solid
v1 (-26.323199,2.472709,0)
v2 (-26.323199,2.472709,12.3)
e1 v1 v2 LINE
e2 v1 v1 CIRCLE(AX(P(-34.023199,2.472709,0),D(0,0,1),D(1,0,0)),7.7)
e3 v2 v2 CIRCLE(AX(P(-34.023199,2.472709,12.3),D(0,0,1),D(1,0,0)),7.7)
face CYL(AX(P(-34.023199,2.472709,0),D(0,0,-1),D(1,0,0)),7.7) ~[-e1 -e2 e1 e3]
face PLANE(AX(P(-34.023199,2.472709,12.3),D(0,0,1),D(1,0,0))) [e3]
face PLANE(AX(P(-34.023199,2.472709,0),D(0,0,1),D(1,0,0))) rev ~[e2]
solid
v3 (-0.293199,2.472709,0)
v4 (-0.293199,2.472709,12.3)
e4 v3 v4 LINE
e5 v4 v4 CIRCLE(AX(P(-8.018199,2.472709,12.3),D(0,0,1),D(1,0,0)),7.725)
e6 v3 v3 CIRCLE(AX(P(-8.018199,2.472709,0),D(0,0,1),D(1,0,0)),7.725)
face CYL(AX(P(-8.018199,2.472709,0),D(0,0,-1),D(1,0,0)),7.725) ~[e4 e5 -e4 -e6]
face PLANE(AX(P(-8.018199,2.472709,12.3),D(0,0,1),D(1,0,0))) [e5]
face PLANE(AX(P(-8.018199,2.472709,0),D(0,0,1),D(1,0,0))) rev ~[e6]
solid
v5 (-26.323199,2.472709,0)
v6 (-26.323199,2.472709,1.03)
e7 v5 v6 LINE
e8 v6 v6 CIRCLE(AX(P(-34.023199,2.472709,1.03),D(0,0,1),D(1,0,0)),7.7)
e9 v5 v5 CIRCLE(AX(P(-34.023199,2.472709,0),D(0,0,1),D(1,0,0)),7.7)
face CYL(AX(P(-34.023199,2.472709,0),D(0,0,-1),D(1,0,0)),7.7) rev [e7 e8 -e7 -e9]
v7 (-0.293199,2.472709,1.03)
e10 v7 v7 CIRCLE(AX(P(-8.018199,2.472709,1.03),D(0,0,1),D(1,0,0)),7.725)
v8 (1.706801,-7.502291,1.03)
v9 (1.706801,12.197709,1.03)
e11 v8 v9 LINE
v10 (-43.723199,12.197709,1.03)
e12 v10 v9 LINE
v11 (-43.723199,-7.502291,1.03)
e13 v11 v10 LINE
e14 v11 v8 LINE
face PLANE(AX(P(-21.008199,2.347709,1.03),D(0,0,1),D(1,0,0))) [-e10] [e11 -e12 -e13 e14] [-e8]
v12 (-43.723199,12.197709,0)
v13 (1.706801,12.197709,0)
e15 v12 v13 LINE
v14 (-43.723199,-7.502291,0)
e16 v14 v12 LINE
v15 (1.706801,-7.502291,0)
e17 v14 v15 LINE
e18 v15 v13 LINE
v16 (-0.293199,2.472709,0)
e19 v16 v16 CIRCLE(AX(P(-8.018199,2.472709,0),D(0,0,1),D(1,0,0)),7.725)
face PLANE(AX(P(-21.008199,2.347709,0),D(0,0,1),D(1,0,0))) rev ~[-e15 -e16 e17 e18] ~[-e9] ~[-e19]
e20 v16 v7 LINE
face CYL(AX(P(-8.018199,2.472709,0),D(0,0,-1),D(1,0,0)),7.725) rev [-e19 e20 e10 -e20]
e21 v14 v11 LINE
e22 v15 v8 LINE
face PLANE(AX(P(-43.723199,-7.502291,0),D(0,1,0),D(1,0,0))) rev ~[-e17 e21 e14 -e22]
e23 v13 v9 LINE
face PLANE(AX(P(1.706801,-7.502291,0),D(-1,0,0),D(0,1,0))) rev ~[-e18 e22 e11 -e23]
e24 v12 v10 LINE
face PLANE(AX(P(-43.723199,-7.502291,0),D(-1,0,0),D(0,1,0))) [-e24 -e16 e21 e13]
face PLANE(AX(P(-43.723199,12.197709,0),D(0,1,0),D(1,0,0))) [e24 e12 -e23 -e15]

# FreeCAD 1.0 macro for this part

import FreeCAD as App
import Part
import Sketcher

V = App.Vector
Q = App.Units.Quantity

doc = App.newDocument("Part")
body = doc.addObject("PartDesign::Body", "Body")
body.AllowCompound = True

sketch1 = body.newObject("Sketcher::SketchObject", "Sketch")
sketch1.AttachmentSupport = (doc.getObject("XY_Plane"), [""])
sketch1.MapMode = "FlatFace"
sketch1.addGeometry(Part.Circle(V(-34, 2, 0), V(0, 0, 1), 8), False)
sketch1.addGeometry(Part.Circle(V(-8, 2, 0), V(0, 0, 1), 8), False)
sketch1.addConstraint(Sketcher.Constraint("Horizontal", 0, 3, 1, 3))
sketch1.addConstraint(Sketcher.Constraint("Diameter", 0, Q("15.4 mm")))
sketch1.addConstraint(Sketcher.Constraint("Diameter", 1, Q("15.45 mm")))
sketch1.addConstraint(Sketcher.Constraint("DistanceX", 0, 3, 1, 3, Q("26.005 mm")))
sketch1.addConstraint(Sketcher.Constraint("DistanceX", 0, 3, -1, 1, Q("34.023199 mm")))
sketch1.addConstraint(Sketcher.Constraint("DistanceY", -1, 1, 0, 3, Q("2.472709 mm")))
pad1 = body.newObject("PartDesign::Pad", "Pad")
pad1.Profile = sketch1
pad1.Length = 12.3
body2 = doc.addObject("PartDesign::Body", "Body001")

sketch2 = body2.newObject("Sketcher::SketchObject", "Sketch001")
sketch2.AttachmentSupport = (doc.getObject("XY_Plane001"), [""])
sketch2.MapMode = "FlatFace"
sketch2.addGeometry(Part.LineSegment(V(-44, 12, 0), V(-44, -8, 0)), False)
sketch2.addGeometry(Part.LineSegment(V(-44, -8, 0), V(2, -8, 0)), False)
sketch2.addGeometry(Part.LineSegment(V(2, -8, 0), V(2, 12, 0)), False)
sketch2.addGeometry(Part.LineSegment(V(2, 12, 0), V(-44, 12, 0)), False)
sketch2.addGeometry(Part.Circle(V(-34, 2, 0), V(0, 0, 1), 8), False)
sketch2.addGeometry(Part.Circle(V(-8, 2, 0), V(0, 0, 1), 8), False)
sketch2.addConstraint(Sketcher.Constraint("Coincident", 0, 2, 1, 1))
sketch2.addConstraint(Sketcher.Constraint("Coincident", 1, 2, 2, 1))
sketch2.addConstraint(Sketcher.Constraint("Coincident", 2, 2, 3, 1))
sketch2.addConstraint(Sketcher.Constraint("Coincident", 3, 2, 0, 1))
sketch2.addConstraint(Sketcher.Constraint("Vertical", 0))
sketch2.addConstraint(Sketcher.Constraint("Horizontal", 1))
sketch2.addConstraint(Sketcher.Constraint("Vertical", 2))
sketch2.addConstraint(Sketcher.Constraint("Horizontal", 3))
sketch2.addConstraint(Sketcher.Constraint("Horizontal", 4, 3, 5, 3))
sketch2.addConstraint(Sketcher.Constraint("Diameter", 4, Q("15.4 mm")))
sketch2.addConstraint(Sketcher.Constraint("Diameter", 5, Q("15.45 mm")))
sketch2.addConstraint(Sketcher.Constraint("DistanceY", 0, 2, 0, 1, Q("19.7 mm")))
sketch2.addConstraint(Sketcher.Constraint("DistanceX", 1, 1, 1, 2, Q("45.43 mm")))
sketch2.addConstraint(Sketcher.Constraint("DistanceX", 0, 2, 4, 3, Q("9.7 mm")))
sketch2.addConstraint(Sketcher.Constraint("DistanceX", 4, 3, 5, 3, Q("26.005 mm")))
sketch2.addConstraint(Sketcher.Constraint("DistanceY", 0, 2, 4, 3, Q("9.975 mm")))
sketch2.addConstraint(Sketcher.Constraint("DistanceX", 4, 3, -1, 1, Q("34.023199 mm")))
sketch2.addConstraint(Sketcher.Constraint("DistanceY", -1, 1, 4, 3, Q("2.472709 mm")))
pad2 = body2.newObject("PartDesign::Pad", "Pad001")
pad2.Profile = sketch2
pad2.Length = 1.03

doc.recompute()
